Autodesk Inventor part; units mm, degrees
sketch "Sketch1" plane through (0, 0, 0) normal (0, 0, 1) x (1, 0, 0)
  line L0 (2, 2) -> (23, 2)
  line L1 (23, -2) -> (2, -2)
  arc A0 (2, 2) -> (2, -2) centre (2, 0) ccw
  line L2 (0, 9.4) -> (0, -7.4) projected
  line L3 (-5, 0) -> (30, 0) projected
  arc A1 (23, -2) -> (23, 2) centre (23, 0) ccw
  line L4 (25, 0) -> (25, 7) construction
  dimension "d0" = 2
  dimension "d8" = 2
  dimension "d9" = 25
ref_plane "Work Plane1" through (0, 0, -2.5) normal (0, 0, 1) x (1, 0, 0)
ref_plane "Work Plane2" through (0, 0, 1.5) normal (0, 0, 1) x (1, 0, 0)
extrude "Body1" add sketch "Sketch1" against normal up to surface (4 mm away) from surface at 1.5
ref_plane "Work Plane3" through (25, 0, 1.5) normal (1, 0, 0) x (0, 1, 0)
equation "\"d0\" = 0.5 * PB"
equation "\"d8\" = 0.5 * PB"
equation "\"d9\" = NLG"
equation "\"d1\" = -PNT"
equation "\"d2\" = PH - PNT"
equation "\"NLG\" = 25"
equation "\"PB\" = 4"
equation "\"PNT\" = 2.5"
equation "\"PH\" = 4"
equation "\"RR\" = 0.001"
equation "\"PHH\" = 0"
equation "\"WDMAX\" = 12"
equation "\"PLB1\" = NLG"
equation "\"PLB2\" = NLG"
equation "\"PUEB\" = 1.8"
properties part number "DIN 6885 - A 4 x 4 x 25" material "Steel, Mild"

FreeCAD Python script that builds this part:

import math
import FreeCAD as App
import Part
import Sketcher

V = App.Vector

doc = App.newDocument("Part")
body = doc.addObject("PartDesign::Body", "Body")

sketch1 = body.newObject("Sketcher::SketchObject", "Sketch")
sketch1.AttachmentSupport = (doc.getObject("XY_Plane"), [""])
sketch1.MapMode = "FlatFace"
sketch1.AttachmentOffset = App.Placement(V(0, 0, 1.5), App.Rotation())
sketch1.addGeometry(Part.LineSegment(V(23, 2, 0), V(2, 2, 0)), False)
sketch1.addGeometry(Part.ArcOfCircle(Part.Circle(V(2, 0, 0), V(0, 0, 1), 2), math.radians(90), math.radians(270)), False)
sketch1.addGeometry(Part.LineSegment(V(2, -2, 0), V(23, -2, 0)), False)
sketch1.addGeometry(Part.ArcOfCircle(Part.Circle(V(23, 0, 0), V(0, 0, 1), 2), math.radians(-90), math.radians(90)), False)
sketch1.addConstraint(Sketcher.Constraint("Tangent", 0, 2, 1, 1))
sketch1.addConstraint(Sketcher.Constraint("Tangent", 1, 2, 2, 1))
sketch1.addConstraint(Sketcher.Constraint("Tangent", 2, 2, 3, 1))
sketch1.addConstraint(Sketcher.Constraint("Tangent", 3, 2, 0, 1))
sketch1.addConstraint(Sketcher.Constraint("Horizontal", 0))
sketch1.addConstraint(Sketcher.Constraint("Horizontal", 2))
sketch1.addConstraint(Sketcher.Constraint("PointOnObject", 1, 3, -1))
sketch1.addConstraint(Sketcher.Constraint("Radius", 1, 2.0))
sketch1.addConstraint(Sketcher.Constraint("DistanceX", -1, 1, 1, 3, 2.0))
sketch1.addConstraint(Sketcher.Constraint("DistanceX", 0, 2, 0, 1, 21.0))
pad1 = body.newObject("PartDesign::Pad", "Pad")
pad1.Profile = sketch1
pad1.Length = 4
pad1.Reversed = True

doc.recompute()
